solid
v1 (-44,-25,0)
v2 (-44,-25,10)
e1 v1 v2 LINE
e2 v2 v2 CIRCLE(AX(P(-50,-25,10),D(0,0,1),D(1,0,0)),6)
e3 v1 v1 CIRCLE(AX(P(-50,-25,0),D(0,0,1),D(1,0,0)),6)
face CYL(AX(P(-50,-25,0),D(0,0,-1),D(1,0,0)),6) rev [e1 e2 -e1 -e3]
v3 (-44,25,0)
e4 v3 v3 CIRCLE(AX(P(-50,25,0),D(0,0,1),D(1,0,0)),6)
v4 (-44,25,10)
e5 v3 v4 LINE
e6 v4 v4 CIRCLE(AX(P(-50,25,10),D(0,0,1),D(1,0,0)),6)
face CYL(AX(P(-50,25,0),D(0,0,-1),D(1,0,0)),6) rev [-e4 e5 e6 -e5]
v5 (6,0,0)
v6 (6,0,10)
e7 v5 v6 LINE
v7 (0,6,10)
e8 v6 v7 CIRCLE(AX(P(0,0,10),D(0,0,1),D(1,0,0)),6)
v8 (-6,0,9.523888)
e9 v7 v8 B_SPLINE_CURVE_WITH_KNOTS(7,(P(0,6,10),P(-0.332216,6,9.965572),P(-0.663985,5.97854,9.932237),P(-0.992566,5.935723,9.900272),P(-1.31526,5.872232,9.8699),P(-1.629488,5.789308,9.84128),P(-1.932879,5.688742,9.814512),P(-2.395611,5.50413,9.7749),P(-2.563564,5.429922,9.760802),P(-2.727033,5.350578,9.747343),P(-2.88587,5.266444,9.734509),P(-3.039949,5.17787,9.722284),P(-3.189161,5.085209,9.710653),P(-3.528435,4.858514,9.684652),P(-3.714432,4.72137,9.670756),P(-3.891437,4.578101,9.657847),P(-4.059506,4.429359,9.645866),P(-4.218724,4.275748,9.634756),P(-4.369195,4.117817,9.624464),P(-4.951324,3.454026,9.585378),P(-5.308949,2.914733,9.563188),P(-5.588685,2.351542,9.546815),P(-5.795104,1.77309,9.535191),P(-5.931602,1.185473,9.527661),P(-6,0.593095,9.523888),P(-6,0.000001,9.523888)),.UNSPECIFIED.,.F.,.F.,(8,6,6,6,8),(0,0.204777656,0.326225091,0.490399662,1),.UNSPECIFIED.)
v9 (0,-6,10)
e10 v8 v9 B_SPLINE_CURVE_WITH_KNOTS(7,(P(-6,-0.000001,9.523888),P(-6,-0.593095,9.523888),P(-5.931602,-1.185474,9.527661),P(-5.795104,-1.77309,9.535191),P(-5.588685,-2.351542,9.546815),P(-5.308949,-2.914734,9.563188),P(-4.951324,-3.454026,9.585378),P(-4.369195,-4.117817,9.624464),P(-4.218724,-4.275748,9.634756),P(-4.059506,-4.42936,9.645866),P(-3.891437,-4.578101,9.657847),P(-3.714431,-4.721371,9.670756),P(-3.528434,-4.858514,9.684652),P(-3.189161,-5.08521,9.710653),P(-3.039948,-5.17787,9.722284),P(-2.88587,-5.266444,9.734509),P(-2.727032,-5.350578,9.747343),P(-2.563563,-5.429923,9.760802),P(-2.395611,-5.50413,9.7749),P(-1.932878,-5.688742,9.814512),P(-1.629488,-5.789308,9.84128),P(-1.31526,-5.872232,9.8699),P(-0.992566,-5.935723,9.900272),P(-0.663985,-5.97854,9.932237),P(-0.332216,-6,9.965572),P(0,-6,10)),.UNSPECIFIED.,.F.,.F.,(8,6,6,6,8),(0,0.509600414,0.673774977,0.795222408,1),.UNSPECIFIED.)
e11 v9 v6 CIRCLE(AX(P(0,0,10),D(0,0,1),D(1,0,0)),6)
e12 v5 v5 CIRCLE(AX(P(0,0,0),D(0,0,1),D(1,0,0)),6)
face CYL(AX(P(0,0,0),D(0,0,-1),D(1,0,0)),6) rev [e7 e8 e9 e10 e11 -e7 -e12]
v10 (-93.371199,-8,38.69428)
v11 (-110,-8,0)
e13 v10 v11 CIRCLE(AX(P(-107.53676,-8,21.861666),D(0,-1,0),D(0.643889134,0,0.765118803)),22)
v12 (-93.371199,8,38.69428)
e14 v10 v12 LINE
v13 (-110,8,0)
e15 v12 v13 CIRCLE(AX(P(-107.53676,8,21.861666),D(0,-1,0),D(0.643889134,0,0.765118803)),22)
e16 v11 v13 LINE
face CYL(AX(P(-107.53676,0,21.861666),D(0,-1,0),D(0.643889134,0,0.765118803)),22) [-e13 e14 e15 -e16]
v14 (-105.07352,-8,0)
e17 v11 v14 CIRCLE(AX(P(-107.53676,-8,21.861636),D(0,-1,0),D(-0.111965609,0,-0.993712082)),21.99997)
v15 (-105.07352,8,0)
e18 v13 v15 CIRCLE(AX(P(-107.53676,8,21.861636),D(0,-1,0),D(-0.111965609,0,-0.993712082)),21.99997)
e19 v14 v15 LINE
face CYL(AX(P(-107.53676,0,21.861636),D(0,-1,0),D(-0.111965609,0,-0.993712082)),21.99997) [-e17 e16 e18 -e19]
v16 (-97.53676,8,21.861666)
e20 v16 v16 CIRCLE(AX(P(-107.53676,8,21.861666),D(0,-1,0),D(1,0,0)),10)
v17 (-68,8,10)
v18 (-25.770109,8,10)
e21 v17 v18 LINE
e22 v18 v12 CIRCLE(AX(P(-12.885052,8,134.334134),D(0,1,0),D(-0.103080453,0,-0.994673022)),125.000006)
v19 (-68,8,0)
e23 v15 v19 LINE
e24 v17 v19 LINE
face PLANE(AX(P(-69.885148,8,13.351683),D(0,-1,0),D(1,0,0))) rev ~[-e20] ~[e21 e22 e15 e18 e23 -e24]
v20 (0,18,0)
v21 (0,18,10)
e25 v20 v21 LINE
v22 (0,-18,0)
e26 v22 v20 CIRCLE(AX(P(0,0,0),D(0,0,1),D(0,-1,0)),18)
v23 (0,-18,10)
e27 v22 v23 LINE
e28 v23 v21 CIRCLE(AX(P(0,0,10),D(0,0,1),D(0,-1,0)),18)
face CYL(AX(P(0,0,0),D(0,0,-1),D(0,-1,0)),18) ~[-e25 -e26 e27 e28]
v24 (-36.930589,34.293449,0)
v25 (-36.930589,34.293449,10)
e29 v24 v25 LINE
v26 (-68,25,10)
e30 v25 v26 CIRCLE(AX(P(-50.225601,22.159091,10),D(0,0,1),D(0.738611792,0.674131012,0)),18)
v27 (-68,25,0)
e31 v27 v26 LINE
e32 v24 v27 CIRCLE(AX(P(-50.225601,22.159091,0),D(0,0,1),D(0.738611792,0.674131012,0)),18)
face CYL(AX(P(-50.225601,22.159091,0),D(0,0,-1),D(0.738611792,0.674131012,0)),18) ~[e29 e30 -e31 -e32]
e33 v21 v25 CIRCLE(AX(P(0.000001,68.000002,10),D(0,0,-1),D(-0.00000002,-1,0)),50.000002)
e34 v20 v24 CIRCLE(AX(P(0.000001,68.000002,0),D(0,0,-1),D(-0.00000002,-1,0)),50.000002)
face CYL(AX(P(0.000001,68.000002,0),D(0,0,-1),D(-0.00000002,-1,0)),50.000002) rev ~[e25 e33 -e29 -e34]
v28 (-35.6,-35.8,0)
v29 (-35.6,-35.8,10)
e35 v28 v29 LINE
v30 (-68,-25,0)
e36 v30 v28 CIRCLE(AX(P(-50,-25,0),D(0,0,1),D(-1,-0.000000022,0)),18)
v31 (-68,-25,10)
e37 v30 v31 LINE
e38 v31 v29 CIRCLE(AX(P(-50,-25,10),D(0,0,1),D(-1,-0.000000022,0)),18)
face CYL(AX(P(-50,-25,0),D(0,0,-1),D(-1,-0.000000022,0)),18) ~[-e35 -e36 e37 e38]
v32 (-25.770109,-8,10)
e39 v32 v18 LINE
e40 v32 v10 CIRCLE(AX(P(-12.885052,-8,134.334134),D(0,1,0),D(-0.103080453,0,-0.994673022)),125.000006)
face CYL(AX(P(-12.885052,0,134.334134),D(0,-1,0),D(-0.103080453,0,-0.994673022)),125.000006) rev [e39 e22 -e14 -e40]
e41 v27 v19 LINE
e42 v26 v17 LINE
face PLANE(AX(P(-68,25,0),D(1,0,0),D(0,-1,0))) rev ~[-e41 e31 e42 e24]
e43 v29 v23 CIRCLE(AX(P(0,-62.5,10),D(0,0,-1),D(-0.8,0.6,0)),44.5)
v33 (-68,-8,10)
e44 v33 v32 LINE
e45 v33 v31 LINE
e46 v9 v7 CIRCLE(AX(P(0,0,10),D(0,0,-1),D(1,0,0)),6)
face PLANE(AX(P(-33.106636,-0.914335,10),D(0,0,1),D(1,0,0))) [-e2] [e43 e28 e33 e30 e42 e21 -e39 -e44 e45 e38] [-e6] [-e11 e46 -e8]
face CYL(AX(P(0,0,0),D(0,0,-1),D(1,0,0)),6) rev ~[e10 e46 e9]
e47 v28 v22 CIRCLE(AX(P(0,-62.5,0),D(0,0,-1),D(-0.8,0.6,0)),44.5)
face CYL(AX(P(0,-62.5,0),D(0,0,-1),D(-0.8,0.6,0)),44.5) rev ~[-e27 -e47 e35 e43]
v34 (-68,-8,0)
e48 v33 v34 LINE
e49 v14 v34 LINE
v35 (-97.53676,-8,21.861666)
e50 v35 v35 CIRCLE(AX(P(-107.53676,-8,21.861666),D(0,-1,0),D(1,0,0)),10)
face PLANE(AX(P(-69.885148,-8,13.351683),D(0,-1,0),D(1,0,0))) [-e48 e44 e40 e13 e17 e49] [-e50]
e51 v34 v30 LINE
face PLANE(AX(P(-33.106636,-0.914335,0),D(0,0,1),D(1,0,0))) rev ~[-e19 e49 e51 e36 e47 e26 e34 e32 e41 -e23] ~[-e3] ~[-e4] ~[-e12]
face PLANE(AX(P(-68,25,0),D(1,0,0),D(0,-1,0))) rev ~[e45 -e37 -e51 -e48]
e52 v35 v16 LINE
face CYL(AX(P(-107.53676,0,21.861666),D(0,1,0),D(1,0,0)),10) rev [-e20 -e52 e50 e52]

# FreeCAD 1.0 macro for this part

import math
import FreeCAD as App
import Part
import Sketcher
from FreeCAD import Vector
Q = App.Units.Quantity

doc = App.newDocument("Part")
body = doc.addObject("PartDesign::Body", "Body")

# Sketch on XY plane
sketch1 = body.newObject("Sketcher::SketchObject", "Sketch")
sketch1.AttachmentSupport = (doc.getObject("XY_Plane"), [""])
sketch1.MapMode = "FlatFace"
sketch1.addGeometry(Part.ArcOfCircle(Part.Circle(Vector(0, -62, 0), Vector(0, 0, 1), 44), math.radians(90), math.radians(143)), False)
sketch1.addGeometry(Part.ArcOfCircle(Part.Circle(Vector(0, 0, 0), Vector(0, 0, 1), 18), math.radians(-90), math.radians(90)), False)
sketch1.addGeometry(Part.ArcOfCircle(Part.Circle(Vector(0, 68, 0), Vector(0, 0, 1), 50), math.radians(-138), math.radians(-90)), False)
sketch1.addGeometry(Part.ArcOfCircle(Part.Circle(Vector(-50, 22, 0), Vector(0, 0, 1), 18), math.radians(42), math.radians(171)), False)
sketch1.addGeometry(Part.LineSegment(Vector(-68, 25, 0), Vector(-68, -25, 0)), False)
sketch1.addGeometry(Part.ArcOfCircle(Part.Circle(Vector(-50, -25, 0), Vector(0, 0, 1), 18), math.radians(-180), math.radians(-37)), False)
sketch1.addGeometry(Part.Circle(Vector(-50, -25, 0), Vector(0, 0, 1), 6), False)
sketch1.addGeometry(Part.Circle(Vector(-50, 25, 0), Vector(0, 0, 1), 6), False)
sketch1.addGeometry(Part.Circle(Vector(0, 0, 0), Vector(0, 0, 1), 6), False)
sketch1.addConstraint(Sketcher.Constraint("Tangent", 0, 1, 1, 1))
sketch1.addConstraint(Sketcher.Constraint("Tangent", 1, 2, 2, 2))
sketch1.addConstraint(Sketcher.Constraint("Tangent", 2, 1, 3, 1))
sketch1.addConstraint(Sketcher.Constraint("Coincident", 3, 2, 4, 1))
sketch1.addConstraint(Sketcher.Constraint("Tangent", 4, 2, 5, 1))
sketch1.addConstraint(Sketcher.Constraint("Tangent", 5, 2, 0, 2))
sketch1.addConstraint(Sketcher.Constraint("Vertical", 4))
sketch1.addConstraint(Sketcher.Constraint("Coincident", 1, 3, -1, 1))
sketch1.addConstraint(Sketcher.Constraint("Coincident", 8, 3, -1, 1))
sketch1.addConstraint(Sketcher.Constraint("Coincident", 6, 3, 5, 3))
sketch1.addConstraint(Sketcher.Constraint("Equal", 1, 3))
sketch1.addConstraint(Sketcher.Constraint("Equal", 3, 5))
sketch1.addConstraint(Sketcher.Constraint("Equal", 6, 7))
sketch1.addConstraint(Sketcher.Constraint("Equal", 7, 8))
sketch1.addConstraint(Sketcher.Constraint("Symmetric", 5, 3, 7, 3, -1))
sketch1.addConstraint(Sketcher.Constraint("PointOnObject", 0, 3, -2))
sketch1.addConstraint(Sketcher.Constraint("PointOnObject", 2, 3, -2))
sketch1.addConstraint(Sketcher.Constraint("Horizontal", 7, 3, 3, 2))
sketch1.addConstraint(Sketcher.Constraint("Diameter", 6, Q("12 mm")))
sketch1.addConstraint(Sketcher.Constraint("Radius", 1, Q("18 mm")))
sketch1.addConstraint(Sketcher.Constraint("Radius", 2, Q("50.000002 mm")))
sketch1.addConstraint(Sketcher.Constraint("Radius", 0, Q("44.5 mm")))
sketch1.addConstraint(Sketcher.Constraint("DistanceY", 4, 2, 4, 1, Q("50 mm")))
pad1 = body.newObject("PartDesign::Pad", "Pad")
pad1.Profile = sketch1
pad1.Length = 10

# Sketch on XZ plane
sketch2 = body.newObject("Sketcher::SketchObject", "Sketch001")
sketch2.AttachmentSupport = (doc.getObject("XZ_Plane"), [""])
sketch2.MapMode = "FlatFace"
sketch2.addGeometry(Part.LineSegment(Vector(-6, 0, 0), Vector(-6, 9.523888, 0)), False)
sketch2.addGeometry(Part.ArcOfCircle(Part.Circle(Vector(-12.885162, 134.335511, 0), Vector(0, 0, 1), 125.001387), math.radians(-86.842511), math.radians(-84.083433)), False)
sketch2.addGeometry(Part.LineSegment(Vector(0, 10, 0), Vector(-25.770109, 10, 0)), False)
sketch2.addGeometry(Part.ArcOfCircle(Part.Circle(Vector(-12.885052, 134.334134, 0), Vector(0, 0, 1), 125.000006), math.radians(-130.082438), math.radians(-95.916584)), False)
sketch2.addGeometry(Part.ArcOfCircle(Part.Circle(Vector(-107.53676, 21.861666, 0), Vector(0, 0, 1), 22), math.radians(49.917562), math.radians(263.571372)), False)
sketch2.addGeometry(Part.ArcOfCircle(Part.Circle(Vector(-107.53676, 21.861636, 0), Vector(0, 0, 1), 21.99997), math.radians(-96.428637), math.radians(-83.571363)), False)
sketch2.addGeometry(Part.LineSegment(Vector(-105.07352, 0, 0), Vector(-6, 0, 0)), False)
sketch2.addGeometry(Part.Circle(Vector(-107.53676, 21.861666, 0), Vector(0, 0, 1), 10), False)
sketch2.addConstraint(Sketcher.Constraint("Coincident", 0, 2, 1, 1))
sketch2.addConstraint(Sketcher.Constraint("Coincident", 1, 2, 2, 1))
sketch2.addConstraint(Sketcher.Constraint("Coincident", 2, 2, 3, 2))
sketch2.addConstraint(Sketcher.Constraint("Coincident", 3, 1, 4, 1))
sketch2.addConstraint(Sketcher.Constraint("Coincident", 4, 2, 5, 1))
sketch2.addConstraint(Sketcher.Constraint("Coincident", 5, 2, 6, 1))
sketch2.addConstraint(Sketcher.Constraint("Coincident", 6, 2, 0, 1))
sketch2.addConstraint(Sketcher.Constraint("Vertical", 0))
sketch2.addConstraint(Sketcher.Constraint("Horizontal", 2))
sketch2.addConstraint(Sketcher.Constraint("Horizontal", 6))
sketch2.addConstraint(Sketcher.Constraint("Coincident", 7, 3, 4, 3))
sketch2.addConstraint(Sketcher.Constraint("PointOnObject", 1, 2, -2))
sketch2.addConstraint(Sketcher.Constraint("PointOnObject", 4, 2, -1))
sketch2.addConstraint(Sketcher.Constraint("PointOnObject", 5, 2, -1))
sketch2.addConstraint(Sketcher.Constraint("Diameter", 7, Q("20 mm")))
sketch2.addConstraint(Sketcher.Constraint("Radius", 4, Q("22 mm")))
sketch2.addConstraint(Sketcher.Constraint("DistanceX", 0, 2, -1, 1, Q("6 mm")))
sketch2.addConstraint(Sketcher.Constraint("DistanceY", -1, 1, 1, 2, Q("10 mm")))
sketch2.addConstraint(Sketcher.Constraint("DistanceX", 4, 2, -1, 1, Q("110 mm")))
sketch2.addConstraint(Sketcher.Constraint("Radius", 5, Q("21.99997 mm")))
sketch2.addConstraint(Sketcher.Constraint("Radius", 1, Q("125.001387 mm")))
sketch2.addConstraint(Sketcher.Constraint("Radius", 3, Q("125.000006 mm")))
sketch2.addConstraint(Sketcher.Constraint("DistanceX", 2, 2, 2, 1, Q("25.770109 mm")))
sketch2.addConstraint(Sketcher.Constraint("DistanceX", 6, 1, 6, 2, Q("99.07352 mm")))
sketch2.addConstraint(Sketcher.Constraint("DistanceX", 3, 1, -1, 1, Q("93.371199 mm")))
sketch2.addConstraint(Sketcher.Constraint("DistanceX", 4, 3, 1, 3, Q("94.651598 mm")))
sketch2.addConstraint(Sketcher.Constraint("DistanceY", 5, 3, 3, 3, Q("112.472498 mm")))
pad2 = body.newObject("PartDesign::Pad", "Pad001")
pad2.Profile = sketch2
pad2.Type = "TwoLengths"
pad2.Length = 8
pad2.Length2 = 8

# Sketch on XY plane
sketch3 = body.newObject("Sketcher::SketchObject", "Sketch002")
sketch3.AttachmentSupport = (doc.getObject("XY_Plane"), [""])
sketch3.MapMode = "FlatFace"
sketch3.addGeometry(Part.Circle(Vector(0, 0, 0), Vector(0, 0, 1), 6), False)
sketch3.addConstraint(Sketcher.Constraint("Coincident", 0, 3, -1, 1))
sketch3.addConstraint(Sketcher.Constraint("Diameter", 0, Q("12 mm")))
pocket1 = body.newObject("PartDesign::Pocket", "Pocket")
pocket1.Profile = sketch3
pocket1.Length = 25
pocket1.Reversed = True

doc.recompute()
